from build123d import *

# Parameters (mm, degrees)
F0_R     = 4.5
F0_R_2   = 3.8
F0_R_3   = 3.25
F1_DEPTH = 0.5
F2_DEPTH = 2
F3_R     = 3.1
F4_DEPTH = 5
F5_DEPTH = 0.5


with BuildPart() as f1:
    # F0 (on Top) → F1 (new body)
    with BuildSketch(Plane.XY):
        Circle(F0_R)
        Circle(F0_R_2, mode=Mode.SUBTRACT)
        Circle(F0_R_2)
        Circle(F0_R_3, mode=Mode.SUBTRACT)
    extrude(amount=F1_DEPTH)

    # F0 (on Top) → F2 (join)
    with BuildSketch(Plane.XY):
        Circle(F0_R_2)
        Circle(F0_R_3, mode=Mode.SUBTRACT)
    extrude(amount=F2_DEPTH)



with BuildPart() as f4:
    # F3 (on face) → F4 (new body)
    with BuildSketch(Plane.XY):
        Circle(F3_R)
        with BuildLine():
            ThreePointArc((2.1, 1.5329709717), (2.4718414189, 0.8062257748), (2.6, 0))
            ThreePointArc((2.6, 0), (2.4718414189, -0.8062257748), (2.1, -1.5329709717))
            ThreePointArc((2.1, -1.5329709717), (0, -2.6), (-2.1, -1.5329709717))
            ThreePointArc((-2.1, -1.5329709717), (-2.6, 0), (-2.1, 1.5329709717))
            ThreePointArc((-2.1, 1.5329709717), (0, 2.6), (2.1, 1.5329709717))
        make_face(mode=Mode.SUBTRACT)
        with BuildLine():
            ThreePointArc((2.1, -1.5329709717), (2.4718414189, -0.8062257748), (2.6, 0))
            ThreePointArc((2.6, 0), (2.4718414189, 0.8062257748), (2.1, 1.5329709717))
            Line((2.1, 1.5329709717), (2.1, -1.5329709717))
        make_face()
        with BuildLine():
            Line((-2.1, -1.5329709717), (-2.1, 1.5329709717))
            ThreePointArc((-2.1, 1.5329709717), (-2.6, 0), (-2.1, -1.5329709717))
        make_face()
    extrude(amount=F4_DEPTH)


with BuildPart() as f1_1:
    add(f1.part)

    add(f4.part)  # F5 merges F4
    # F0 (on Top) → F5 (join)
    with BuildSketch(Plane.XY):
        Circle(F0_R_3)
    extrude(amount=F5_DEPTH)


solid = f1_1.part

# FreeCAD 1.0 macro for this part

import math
import FreeCAD as App
import Part
import Sketcher

V = App.Vector
Q = App.Units.Quantity

doc = App.newDocument("Part")
params = doc.addObject("Spreadsheet::Sheet", "Params")
for row, (alias, value) in enumerate([
    ("sketch1_diameter", "9 mm"),
    ("sketch1_diameter2", "6.5 mm"),
    ("pad1_length", "0.5 mm"),
    ("sketch2_diameter", "7.6 mm"),
    ("sketch2_diameter2", "6.5 mm"),
    ("pad2_length", "2 mm"),
    ("sketch3_diameter", "6.2 mm"),
    ("sketch3_radius", "2.6 mm"),
    ("pad3_length", "5 mm"),
    ("sketch4_diameter", "6.5 mm"),
    ("pad4_length", "0.5 mm"),
], start=1):
    params.set(f"A{row}", alias)
    params.set(f"B{row}", "=" + value)
    params.setAlias(f"B{row}", alias)

body = doc.addObject("PartDesign::Body", "Body")

sketch1 = body.newObject("Sketcher::SketchObject", "Sketch")
sketch1.AttachmentSupport = (doc.getObject("XY_Plane"), [""])
sketch1.MapMode = "FlatFace"
sketch1.addGeometry(Part.Circle(V(0, 0, 0), V(0, 0, 1), 4.5), False)
sketch1.addGeometry(Part.Circle(V(0, 0, 0), V(0, 0, 1), 3.25), False)
sketch1.addConstraint(Sketcher.Constraint("Coincident", 0, 3, -1, 1))
sketch1.addConstraint(Sketcher.Constraint("Coincident", 1, 3, -1, 1))
sketch1.addConstraint(Sketcher.Constraint("Diameter", 0, Q("9 mm")))
sketch1.addConstraint(Sketcher.Constraint("Diameter", 1, Q("6.5 mm")))
sketch1.setExpression("Constraints[2]", "Params.sketch1_diameter")
sketch1.setExpression("Constraints[3]", "Params.sketch1_diameter2")
pad1 = body.newObject("PartDesign::Pad", "Pad")
pad1.Profile = sketch1
pad1.setExpression("Length", "Params.pad1_length")

sketch2 = body.newObject("Sketcher::SketchObject", "Sketch001")
sketch2.AttachmentSupport = (doc.getObject("XY_Plane"), [""])
sketch2.MapMode = "FlatFace"
sketch2.addGeometry(Part.Circle(V(0, 0, 0), V(0, 0, 1), 3.8), False)
sketch2.addGeometry(Part.Circle(V(0, 0, 0), V(0, 0, 1), 3.25), False)
sketch2.addConstraint(Sketcher.Constraint("Coincident", 0, 3, -1, 1))
sketch2.addConstraint(Sketcher.Constraint("Coincident", 1, 3, -1, 1))
sketch2.addConstraint(Sketcher.Constraint("Diameter", 0, Q("7.6 mm")))
sketch2.addConstraint(Sketcher.Constraint("Diameter", 1, Q("6.5 mm")))
sketch2.setExpression("Constraints[2]", "Params.sketch2_diameter")
sketch2.setExpression("Constraints[3]", "Params.sketch2_diameter2")
pad2 = body.newObject("PartDesign::Pad", "Pad001")
pad2.Profile = sketch2
pad2.setExpression("Length", "Params.pad2_length")
body2 = doc.addObject("PartDesign::Body", "Body001")

sketch3 = body2.newObject("Sketcher::SketchObject", "Sketch002")
sketch3.AttachmentSupport = (doc.getObject("XY_Plane001"), [""])
sketch3.MapMode = "FlatFace"
sketch3.addGeometry(Part.Circle(V(0, 0, 0), V(0, 0, 1), 3.1), False)
sketch3.addGeometry(Part.ArcOfCircle(Part.Circle(V(0, 0, 0), V(0, 0, 1), 2.6), math.radians(36.128927), math.radians(143.871073)), False)
sketch3.addGeometry(Part.LineSegment(V(2.1, 1.532971, 0), V(2.1, -1.532971, 0)), False)
sketch3.addGeometry(Part.ArcOfCircle(Part.Circle(V(0, 0, 0), V(0, 0, 1), 2.6), math.radians(-143.871073), math.radians(-36.128927)), False)
sketch3.addGeometry(Part.LineSegment(V(-2.1, -1.532971, 0), V(-2.1, 1.532971, 0)), False)
sketch3.addConstraint(Sketcher.Constraint("Coincident", 1, 1, 2, 1))
sketch3.addConstraint(Sketcher.Constraint("Coincident", 2, 2, 3, 2))
sketch3.addConstraint(Sketcher.Constraint("Coincident", 3, 1, 4, 1))
sketch3.addConstraint(Sketcher.Constraint("Coincident", 4, 2, 1, 2))
sketch3.addConstraint(Sketcher.Constraint("Vertical", 2))
sketch3.addConstraint(Sketcher.Constraint("Vertical", 4))
sketch3.addConstraint(Sketcher.Constraint("Coincident", 0, 3, -1, 1))
sketch3.addConstraint(Sketcher.Constraint("Coincident", 1, 3, -1, 1))
sketch3.addConstraint(Sketcher.Constraint("Coincident", 3, 3, -1, 1))
sketch3.addConstraint(Sketcher.Constraint("Equal", 1, 3))
sketch3.addConstraint(Sketcher.Constraint("Horizontal", 2, 2, 3, 1))
sketch3.addConstraint(Sketcher.Constraint("Diameter", 0, Q("6.2 mm")))
sketch3.addConstraint(Sketcher.Constraint("Radius", 1, Q("2.6 mm")))
sketch3.addConstraint(Sketcher.Constraint("DistanceX", -1, 1, 1, 1, Q("2.1 mm")))
sketch3.setExpression("Constraints[11]", "Params.sketch3_diameter")
sketch3.setExpression("Constraints[12]", "Params.sketch3_radius")
pad3 = body2.newObject("PartDesign::Pad", "Pad002")
pad3.Profile = sketch3
pad3.setExpression("Length", "Params.pad3_length")
body.AllowCompound = True
doc.recompute()

boolean = body.newObject("PartDesign::Boolean", "Boolean")
boolean.Type = "Fuse"
boolean.addObjects([body2])

sketch4 = body.newObject("Sketcher::SketchObject", "Sketch003")
sketch4.AttachmentSupport = (doc.getObject("XY_Plane"), [""])
sketch4.MapMode = "FlatFace"
sketch4.addGeometry(Part.Circle(V(0, 0, 0), V(0, 0, 1), 3.25), False)
sketch4.addConstraint(Sketcher.Constraint("Coincident", 0, 3, -1, 1))
sketch4.addConstraint(Sketcher.Constraint("Diameter", 0, Q("6.5 mm")))
sketch4.setExpression("Constraints[1]", "Params.sketch4_diameter")
pad4 = body.newObject("PartDesign::Pad", "Pad003")
pad4.Profile = sketch4
pad4.setExpression("Length", "Params.pad4_length")

doc.recompute()
